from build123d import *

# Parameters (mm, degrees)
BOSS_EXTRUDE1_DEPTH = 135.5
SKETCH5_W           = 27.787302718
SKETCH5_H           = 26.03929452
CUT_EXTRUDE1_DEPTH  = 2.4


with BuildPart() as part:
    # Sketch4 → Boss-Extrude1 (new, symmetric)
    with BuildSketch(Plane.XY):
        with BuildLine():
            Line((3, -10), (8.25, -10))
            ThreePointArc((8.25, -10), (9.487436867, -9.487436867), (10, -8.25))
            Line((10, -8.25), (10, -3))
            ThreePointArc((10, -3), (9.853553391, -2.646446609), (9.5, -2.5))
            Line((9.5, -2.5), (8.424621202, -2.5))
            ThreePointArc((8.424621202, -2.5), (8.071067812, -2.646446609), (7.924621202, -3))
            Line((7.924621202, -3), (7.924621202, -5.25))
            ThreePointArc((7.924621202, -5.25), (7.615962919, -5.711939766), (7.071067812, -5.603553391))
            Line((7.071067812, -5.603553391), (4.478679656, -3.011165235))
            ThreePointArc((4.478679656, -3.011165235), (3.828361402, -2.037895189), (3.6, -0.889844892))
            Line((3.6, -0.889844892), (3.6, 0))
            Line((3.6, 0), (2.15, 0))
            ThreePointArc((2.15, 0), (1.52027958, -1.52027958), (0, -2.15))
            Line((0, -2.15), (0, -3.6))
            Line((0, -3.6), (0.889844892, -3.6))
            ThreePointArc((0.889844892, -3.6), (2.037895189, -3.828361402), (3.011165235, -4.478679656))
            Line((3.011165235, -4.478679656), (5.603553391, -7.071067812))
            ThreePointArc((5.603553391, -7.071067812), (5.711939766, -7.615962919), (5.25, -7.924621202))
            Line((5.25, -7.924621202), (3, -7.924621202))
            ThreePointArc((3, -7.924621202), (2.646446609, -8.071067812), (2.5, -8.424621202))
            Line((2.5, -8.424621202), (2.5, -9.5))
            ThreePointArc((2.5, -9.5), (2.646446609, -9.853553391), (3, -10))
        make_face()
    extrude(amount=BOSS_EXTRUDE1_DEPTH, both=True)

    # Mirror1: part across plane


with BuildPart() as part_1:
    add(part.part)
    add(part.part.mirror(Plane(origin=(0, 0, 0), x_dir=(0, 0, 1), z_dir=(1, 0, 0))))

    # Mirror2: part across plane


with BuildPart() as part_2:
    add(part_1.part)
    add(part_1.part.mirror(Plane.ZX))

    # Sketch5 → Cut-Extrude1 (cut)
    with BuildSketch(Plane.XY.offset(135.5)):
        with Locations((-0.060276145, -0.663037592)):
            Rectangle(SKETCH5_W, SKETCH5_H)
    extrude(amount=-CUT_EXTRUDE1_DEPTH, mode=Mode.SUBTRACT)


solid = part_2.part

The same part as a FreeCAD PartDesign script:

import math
import FreeCAD as App
import Part
import Sketcher
Q = App.Units.Quantity

doc = App.newDocument("Part")
params = doc.addObject("Spreadsheet::Sheet", "Params")
for row, (alias, value) in enumerate([
    ("sketch1_radius", "3 mm"),
    ("sketch1_radius2", "0.5 mm"),
    ("sketch1_radius3", "1.75 mm"),
    ("sketch1_radius4", "2.15 mm"),
    ("sketch1_width", "1.45 mm"),
    ("pad1_length", "271 mm"),
    ("pocket1_length", "2.4 mm"),
], start=1):
    params.set(f"A{row}", alias)
    params.set(f"B{row}", "=" + value)
    params.setAlias(f"B{row}", alias)

body = doc.addObject("PartDesign::Body", "Body")

# Sketch on XY plane
sketch1 = doc.addObject("Sketcher::SketchObject", "Sketch")
body.addObject(sketch1)
sketch1.AttachmentSupport = (doc.XY_Plane, [""])
sketch1.MapMode = "FlatFace"
sketch1.addGeometry(Part.LineSegment(App.Vector(3, -10, 0), App.Vector(8.25, -10, 0)), False)
sketch1.addGeometry(Part.ArcOfCircle(Part.Circle(App.Vector(8.25, -8.25, 0), App.Vector(0, 0, 1), 1.75), math.radians(-90), math.radians(0)), False)
sketch1.addGeometry(Part.LineSegment(App.Vector(10, -8.25, 0), App.Vector(10, -3, 0)), False)
sketch1.addGeometry(Part.ArcOfCircle(Part.Circle(App.Vector(9.5, -3, 0), App.Vector(0, 0, 1), 0.5), math.radians(0), math.radians(90)), False)
sketch1.addGeometry(Part.LineSegment(App.Vector(9.5, -2.5, 0), App.Vector(8.424621, -2.5, 0)), False)
sketch1.addGeometry(Part.ArcOfCircle(Part.Circle(App.Vector(8.424621, -3, 0), App.Vector(0, 0, 1), 0.5), math.radians(90), math.radians(180)), False)
sketch1.addGeometry(Part.LineSegment(App.Vector(7.924621, -3, 0), App.Vector(7.924621, -5.25, 0)), False)
sketch1.addGeometry(Part.ArcOfCircle(Part.Circle(App.Vector(7.424621, -5.25, 0), App.Vector(0, 0, 1), 0.5), math.radians(-135), math.radians(0)), False)
sketch1.addGeometry(Part.LineSegment(App.Vector(7.071068, -5.603553, 0), App.Vector(4.47868, -3.011165, 0)), False)
sketch1.addGeometry(Part.ArcOfCircle(Part.Circle(App.Vector(6.6, -0.889845, 0), App.Vector(0, 0, 1), 3), math.radians(180), math.radians(225)), False)
sketch1.addGeometry(Part.LineSegment(App.Vector(3.6, -0.889845, 0), App.Vector(3.6, 0, 0)), False)
sketch1.addGeometry(Part.LineSegment(App.Vector(3.6, 0, 0), App.Vector(2.15, 0, 0)), False)
sketch1.addGeometry(Part.ArcOfCircle(Part.Circle(App.Vector(0, 0, 0), App.Vector(0, 0, 1), 2.15), math.radians(-90), math.radians(0)), False)
sketch1.addGeometry(Part.LineSegment(App.Vector(0, -2.15, 0), App.Vector(0, -3.6, 0)), False)
sketch1.addGeometry(Part.LineSegment(App.Vector(0, -3.6, 0), App.Vector(0.889845, -3.6, 0)), False)
sketch1.addGeometry(Part.ArcOfCircle(Part.Circle(App.Vector(0.889845, -6.6, 0), App.Vector(0, 0, 1), 3), math.radians(45), math.radians(90)), False)
sketch1.addGeometry(Part.LineSegment(App.Vector(3.011165, -4.47868, 0), App.Vector(5.603553, -7.071068, 0)), False)
sketch1.addGeometry(Part.ArcOfCircle(Part.Circle(App.Vector(5.25, -7.424621, 0), App.Vector(0, 0, 1), 0.5), math.radians(-90), math.radians(45)), False)
sketch1.addGeometry(Part.LineSegment(App.Vector(5.25, -7.924621, 0), App.Vector(3, -7.924621, 0)), False)
sketch1.addGeometry(Part.ArcOfCircle(Part.Circle(App.Vector(3, -8.424621, 0), App.Vector(0, 0, 1), 0.5), math.radians(90), math.radians(180)), False)
sketch1.addGeometry(Part.LineSegment(App.Vector(2.5, -8.424621, 0), App.Vector(2.5, -9.5, 0)), False)
sketch1.addGeometry(Part.ArcOfCircle(Part.Circle(App.Vector(3, -9.5, 0), App.Vector(0, 0, 1), 0.5), math.radians(180), math.radians(270)), False)
sketch1.addConstraint(Sketcher.Constraint("Tangent", 0, 2, 1, 1))
sketch1.addConstraint(Sketcher.Constraint("Tangent", 1, 2, 2, 1))
sketch1.addConstraint(Sketcher.Constraint("Tangent", 2, 2, 3, 1))
sketch1.addConstraint(Sketcher.Constraint("Tangent", 3, 2, 4, 1))
sketch1.addConstraint(Sketcher.Constraint("Tangent", 4, 2, 5, 1))
sketch1.addConstraint(Sketcher.Constraint("Tangent", 5, 2, 6, 1))
sketch1.addConstraint(Sketcher.Constraint("Tangent", 6, 2, 7, 2))
sketch1.addConstraint(Sketcher.Constraint("Tangent", 7, 1, 8, 1))
sketch1.addConstraint(Sketcher.Constraint("Tangent", 8, 2, 9, 2))
sketch1.addConstraint(Sketcher.Constraint("Tangent", 9, 1, 10, 1))
sketch1.addConstraint(Sketcher.Constraint("Coincident", 10, 2, 11, 1))
sketch1.addConstraint(Sketcher.Constraint("Coincident", 11, 2, 12, 2))
sketch1.addConstraint(Sketcher.Constraint("Coincident", 12, 1, 13, 1))
sketch1.addConstraint(Sketcher.Constraint("Coincident", 13, 2, 14, 1))
sketch1.addConstraint(Sketcher.Constraint("Tangent", 14, 2, 15, 2))
sketch1.addConstraint(Sketcher.Constraint("Tangent", 15, 1, 16, 1))
sketch1.addConstraint(Sketcher.Constraint("Tangent", 16, 2, 17, 2))
sketch1.addConstraint(Sketcher.Constraint("Tangent", 17, 1, 18, 1))
sketch1.addConstraint(Sketcher.Constraint("Tangent", 18, 2, 19, 1))
sketch1.addConstraint(Sketcher.Constraint("Tangent", 19, 2, 20, 1))
sketch1.addConstraint(Sketcher.Constraint("Tangent", 20, 2, 21, 1))
sketch1.addConstraint(Sketcher.Constraint("Tangent", 21, 2, 0, 1))
sketch1.addConstraint(Sketcher.Constraint("Horizontal", 0))
sketch1.addConstraint(Sketcher.Constraint("Vertical", 2))
sketch1.addConstraint(Sketcher.Constraint("Horizontal", 4))
sketch1.addConstraint(Sketcher.Constraint("Vertical", 6))
sketch1.addConstraint(Sketcher.Constraint("Vertical", 10))
sketch1.addConstraint(Sketcher.Constraint("Horizontal", 11))
sketch1.addConstraint(Sketcher.Constraint("Vertical", 13))
sketch1.addConstraint(Sketcher.Constraint("Horizontal", 14))
sketch1.addConstraint(Sketcher.Constraint("Horizontal", 18))
sketch1.addConstraint(Sketcher.Constraint("Vertical", 20))
sketch1.addConstraint(Sketcher.Constraint("Coincident", 12, 3, -1, 1))
sketch1.addConstraint(Sketcher.Constraint("Equal", 3, 5))
sketch1.addConstraint(Sketcher.Constraint("Equal", 5, 7))
sketch1.addConstraint(Sketcher.Constraint("Equal", 9, 15))
sketch1.addConstraint(Sketcher.Constraint("Equal", 7, 17))
sketch1.addConstraint(Sketcher.Constraint("Equal", 17, 19))
sketch1.addConstraint(Sketcher.Constraint("Equal", 19, 21))
sketch1.addConstraint(Sketcher.Constraint("PointOnObject", 10, 2, -1))
sketch1.addConstraint(Sketcher.Constraint("PointOnObject", 12, 1, -2))
sketch1.addConstraint(Sketcher.Constraint("Parallel", 8, 16))
sketch1.addConstraint(Sketcher.Constraint("Equal", 0, 2))
sketch1.addConstraint(Sketcher.Constraint("Equal", 18, 6))
sketch1.addConstraint(Sketcher.Constraint("Equal", 14, 10))
sketch1.addConstraint(Sketcher.Constraint("Equal", 11, 13))
sketch1.addConstraint(Sketcher.Constraint("Equal", 4, 20))
sketch1.addConstraint(Sketcher.Constraint("Equal", 8, 16))
sketch1.addConstraint(Sketcher.Constraint("Radius", 9, Q("3 mm")))
sketch1.addConstraint(Sketcher.Constraint("Radius", 3, Q("0.5 mm")))
sketch1.addConstraint(Sketcher.Constraint("Radius", 1, Q("1.75 mm")))
sketch1.addConstraint(Sketcher.Constraint("Radius", 12, Q("2.15 mm")))
sketch1.addConstraint(Sketcher.Constraint("DistanceY", 3, 3, -1, 1, Q("3 mm")))
sketch1.addConstraint(Sketcher.Constraint("DistanceY", 0, 2, -1, 1, Q("10 mm")))
sketch1.addConstraint(Sketcher.Constraint("DistanceY", 1, 3, 7, 3, Q("3 mm")))
sketch1.addConstraint(Sketcher.Constraint("DistanceX", 11, 2, 11, 1, Q("1.45 mm")))
sketch1.addConstraint(Sketcher.Constraint("DistanceX", 4, 2, 4, 1, Q("1.075379 mm")))
sketch1.setExpression("Constraints[48]", "Params.sketch1_radius")
sketch1.setExpression("Constraints[49]", "Params.sketch1_radius2")
sketch1.setExpression("Constraints[50]", "Params.sketch1_radius3")
sketch1.setExpression("Constraints[51]", "Params.sketch1_radius4")
sketch1.setExpression("Constraints[55]", "Params.sketch1_width")
pad1 = doc.addObject("PartDesign::Pad", "Pad")
body.addObject(pad1)
pad1.Profile = sketch1
pad1.setExpression("Length", "Params.pad1_length")
pad1.Midplane = True
body2 = doc.addObject("PartDesign::Body", "Body001")
doc.recompute()

body2.BaseFeature = body
doc.recompute()

mirroring = doc.addObject("Part::Mirroring", "Mirroring")
mirroring.Source = body
mirroring.Base = App.Vector(0, 0, 0)
mirroring.Normal = App.Vector(1, 0, 0)
body3 = doc.addObject("PartDesign::Body", "Body002")
body3.BaseFeature = mirroring
boolean = doc.addObject("PartDesign::Boolean", "Boolean")
body2.addObject(boolean)
boolean.Type = "Fuse"
boolean.addObjects([body3])
doc.recompute()
body4 = doc.addObject("PartDesign::Body", "Body003")
doc.recompute()

body4.BaseFeature = body2
doc.recompute()

mirroring2 = doc.addObject("Part::Mirroring", "Mirroring001")
mirroring2.Source = body2
mirroring2.Base = App.Vector(0, 0, 0)
mirroring2.Normal = App.Vector(0, 1, 0)
body5 = doc.addObject("PartDesign::Body", "Body004")
body5.BaseFeature = mirroring2
boolean2 = doc.addObject("PartDesign::Boolean", "Boolean001")
body4.addObject(boolean2)
boolean2.Type = "Fuse"
boolean2.addObjects([body5])
doc.recompute()

# Sketch on XY plane
sketch2 = doc.addObject("Sketcher::SketchObject", "Sketch001")
body4.addObject(sketch2)
sketch2.AttachmentSupport = (doc.getObject("XY_Plane003"), [""])
sketch2.MapMode = "FlatFace"
sketch2.AttachmentOffset = App.Placement(App.Vector(0, 0, 135.5), App.Rotation())
sketch2.addGeometry(Part.LineSegment(App.Vector(-13.953928, 12.35661, 0), App.Vector(-13.953928, -13.682685, 0)), False)
sketch2.addGeometry(Part.LineSegment(App.Vector(-13.953928, -13.682685, 0), App.Vector(13.833375, -13.682685, 0)), False)
sketch2.addGeometry(Part.LineSegment(App.Vector(13.833375, -13.682685, 0), App.Vector(13.833375, 12.35661, 0)), False)
sketch2.addGeometry(Part.LineSegment(App.Vector(13.833375, 12.35661, 0), App.Vector(-13.953928, 12.35661, 0)), False)
sketch2.addConstraint(Sketcher.Constraint("Coincident", 0, 2, 1, 1))
sketch2.addConstraint(Sketcher.Constraint("Coincident", 1, 2, 2, 1))
sketch2.addConstraint(Sketcher.Constraint("Coincident", 2, 2, 3, 1))
sketch2.addConstraint(Sketcher.Constraint("Coincident", 3, 2, 0, 1))
sketch2.addConstraint(Sketcher.Constraint("Vertical", 0))
sketch2.addConstraint(Sketcher.Constraint("Horizontal", 1))
sketch2.addConstraint(Sketcher.Constraint("Vertical", 2))
sketch2.addConstraint(Sketcher.Constraint("Horizontal", 3))
sketch2.addConstraint(Sketcher.Constraint("DistanceX", 1, 1, 1, 2, Q("27.787303 mm")))
sketch2.addConstraint(Sketcher.Constraint("DistanceY", 0, 2, 0, 1, Q("26.039295 mm")))
sketch2.addConstraint(Sketcher.Constraint("DistanceY", -1, 1, 2, 2, Q("12.35661 mm")))
sketch2.addConstraint(Sketcher.Constraint("DistanceX", 0, 2, -1, 1, Q("13.953928 mm")))
pocket1 = doc.addObject("PartDesign::Pocket", "Pocket")
body4.addObject(pocket1)
pocket1.Profile = sketch2
pocket1.setExpression("Length", "Params.pocket1_length")
mirroring.Visibility = False
mirroring2.Visibility = False

doc.recompute()
